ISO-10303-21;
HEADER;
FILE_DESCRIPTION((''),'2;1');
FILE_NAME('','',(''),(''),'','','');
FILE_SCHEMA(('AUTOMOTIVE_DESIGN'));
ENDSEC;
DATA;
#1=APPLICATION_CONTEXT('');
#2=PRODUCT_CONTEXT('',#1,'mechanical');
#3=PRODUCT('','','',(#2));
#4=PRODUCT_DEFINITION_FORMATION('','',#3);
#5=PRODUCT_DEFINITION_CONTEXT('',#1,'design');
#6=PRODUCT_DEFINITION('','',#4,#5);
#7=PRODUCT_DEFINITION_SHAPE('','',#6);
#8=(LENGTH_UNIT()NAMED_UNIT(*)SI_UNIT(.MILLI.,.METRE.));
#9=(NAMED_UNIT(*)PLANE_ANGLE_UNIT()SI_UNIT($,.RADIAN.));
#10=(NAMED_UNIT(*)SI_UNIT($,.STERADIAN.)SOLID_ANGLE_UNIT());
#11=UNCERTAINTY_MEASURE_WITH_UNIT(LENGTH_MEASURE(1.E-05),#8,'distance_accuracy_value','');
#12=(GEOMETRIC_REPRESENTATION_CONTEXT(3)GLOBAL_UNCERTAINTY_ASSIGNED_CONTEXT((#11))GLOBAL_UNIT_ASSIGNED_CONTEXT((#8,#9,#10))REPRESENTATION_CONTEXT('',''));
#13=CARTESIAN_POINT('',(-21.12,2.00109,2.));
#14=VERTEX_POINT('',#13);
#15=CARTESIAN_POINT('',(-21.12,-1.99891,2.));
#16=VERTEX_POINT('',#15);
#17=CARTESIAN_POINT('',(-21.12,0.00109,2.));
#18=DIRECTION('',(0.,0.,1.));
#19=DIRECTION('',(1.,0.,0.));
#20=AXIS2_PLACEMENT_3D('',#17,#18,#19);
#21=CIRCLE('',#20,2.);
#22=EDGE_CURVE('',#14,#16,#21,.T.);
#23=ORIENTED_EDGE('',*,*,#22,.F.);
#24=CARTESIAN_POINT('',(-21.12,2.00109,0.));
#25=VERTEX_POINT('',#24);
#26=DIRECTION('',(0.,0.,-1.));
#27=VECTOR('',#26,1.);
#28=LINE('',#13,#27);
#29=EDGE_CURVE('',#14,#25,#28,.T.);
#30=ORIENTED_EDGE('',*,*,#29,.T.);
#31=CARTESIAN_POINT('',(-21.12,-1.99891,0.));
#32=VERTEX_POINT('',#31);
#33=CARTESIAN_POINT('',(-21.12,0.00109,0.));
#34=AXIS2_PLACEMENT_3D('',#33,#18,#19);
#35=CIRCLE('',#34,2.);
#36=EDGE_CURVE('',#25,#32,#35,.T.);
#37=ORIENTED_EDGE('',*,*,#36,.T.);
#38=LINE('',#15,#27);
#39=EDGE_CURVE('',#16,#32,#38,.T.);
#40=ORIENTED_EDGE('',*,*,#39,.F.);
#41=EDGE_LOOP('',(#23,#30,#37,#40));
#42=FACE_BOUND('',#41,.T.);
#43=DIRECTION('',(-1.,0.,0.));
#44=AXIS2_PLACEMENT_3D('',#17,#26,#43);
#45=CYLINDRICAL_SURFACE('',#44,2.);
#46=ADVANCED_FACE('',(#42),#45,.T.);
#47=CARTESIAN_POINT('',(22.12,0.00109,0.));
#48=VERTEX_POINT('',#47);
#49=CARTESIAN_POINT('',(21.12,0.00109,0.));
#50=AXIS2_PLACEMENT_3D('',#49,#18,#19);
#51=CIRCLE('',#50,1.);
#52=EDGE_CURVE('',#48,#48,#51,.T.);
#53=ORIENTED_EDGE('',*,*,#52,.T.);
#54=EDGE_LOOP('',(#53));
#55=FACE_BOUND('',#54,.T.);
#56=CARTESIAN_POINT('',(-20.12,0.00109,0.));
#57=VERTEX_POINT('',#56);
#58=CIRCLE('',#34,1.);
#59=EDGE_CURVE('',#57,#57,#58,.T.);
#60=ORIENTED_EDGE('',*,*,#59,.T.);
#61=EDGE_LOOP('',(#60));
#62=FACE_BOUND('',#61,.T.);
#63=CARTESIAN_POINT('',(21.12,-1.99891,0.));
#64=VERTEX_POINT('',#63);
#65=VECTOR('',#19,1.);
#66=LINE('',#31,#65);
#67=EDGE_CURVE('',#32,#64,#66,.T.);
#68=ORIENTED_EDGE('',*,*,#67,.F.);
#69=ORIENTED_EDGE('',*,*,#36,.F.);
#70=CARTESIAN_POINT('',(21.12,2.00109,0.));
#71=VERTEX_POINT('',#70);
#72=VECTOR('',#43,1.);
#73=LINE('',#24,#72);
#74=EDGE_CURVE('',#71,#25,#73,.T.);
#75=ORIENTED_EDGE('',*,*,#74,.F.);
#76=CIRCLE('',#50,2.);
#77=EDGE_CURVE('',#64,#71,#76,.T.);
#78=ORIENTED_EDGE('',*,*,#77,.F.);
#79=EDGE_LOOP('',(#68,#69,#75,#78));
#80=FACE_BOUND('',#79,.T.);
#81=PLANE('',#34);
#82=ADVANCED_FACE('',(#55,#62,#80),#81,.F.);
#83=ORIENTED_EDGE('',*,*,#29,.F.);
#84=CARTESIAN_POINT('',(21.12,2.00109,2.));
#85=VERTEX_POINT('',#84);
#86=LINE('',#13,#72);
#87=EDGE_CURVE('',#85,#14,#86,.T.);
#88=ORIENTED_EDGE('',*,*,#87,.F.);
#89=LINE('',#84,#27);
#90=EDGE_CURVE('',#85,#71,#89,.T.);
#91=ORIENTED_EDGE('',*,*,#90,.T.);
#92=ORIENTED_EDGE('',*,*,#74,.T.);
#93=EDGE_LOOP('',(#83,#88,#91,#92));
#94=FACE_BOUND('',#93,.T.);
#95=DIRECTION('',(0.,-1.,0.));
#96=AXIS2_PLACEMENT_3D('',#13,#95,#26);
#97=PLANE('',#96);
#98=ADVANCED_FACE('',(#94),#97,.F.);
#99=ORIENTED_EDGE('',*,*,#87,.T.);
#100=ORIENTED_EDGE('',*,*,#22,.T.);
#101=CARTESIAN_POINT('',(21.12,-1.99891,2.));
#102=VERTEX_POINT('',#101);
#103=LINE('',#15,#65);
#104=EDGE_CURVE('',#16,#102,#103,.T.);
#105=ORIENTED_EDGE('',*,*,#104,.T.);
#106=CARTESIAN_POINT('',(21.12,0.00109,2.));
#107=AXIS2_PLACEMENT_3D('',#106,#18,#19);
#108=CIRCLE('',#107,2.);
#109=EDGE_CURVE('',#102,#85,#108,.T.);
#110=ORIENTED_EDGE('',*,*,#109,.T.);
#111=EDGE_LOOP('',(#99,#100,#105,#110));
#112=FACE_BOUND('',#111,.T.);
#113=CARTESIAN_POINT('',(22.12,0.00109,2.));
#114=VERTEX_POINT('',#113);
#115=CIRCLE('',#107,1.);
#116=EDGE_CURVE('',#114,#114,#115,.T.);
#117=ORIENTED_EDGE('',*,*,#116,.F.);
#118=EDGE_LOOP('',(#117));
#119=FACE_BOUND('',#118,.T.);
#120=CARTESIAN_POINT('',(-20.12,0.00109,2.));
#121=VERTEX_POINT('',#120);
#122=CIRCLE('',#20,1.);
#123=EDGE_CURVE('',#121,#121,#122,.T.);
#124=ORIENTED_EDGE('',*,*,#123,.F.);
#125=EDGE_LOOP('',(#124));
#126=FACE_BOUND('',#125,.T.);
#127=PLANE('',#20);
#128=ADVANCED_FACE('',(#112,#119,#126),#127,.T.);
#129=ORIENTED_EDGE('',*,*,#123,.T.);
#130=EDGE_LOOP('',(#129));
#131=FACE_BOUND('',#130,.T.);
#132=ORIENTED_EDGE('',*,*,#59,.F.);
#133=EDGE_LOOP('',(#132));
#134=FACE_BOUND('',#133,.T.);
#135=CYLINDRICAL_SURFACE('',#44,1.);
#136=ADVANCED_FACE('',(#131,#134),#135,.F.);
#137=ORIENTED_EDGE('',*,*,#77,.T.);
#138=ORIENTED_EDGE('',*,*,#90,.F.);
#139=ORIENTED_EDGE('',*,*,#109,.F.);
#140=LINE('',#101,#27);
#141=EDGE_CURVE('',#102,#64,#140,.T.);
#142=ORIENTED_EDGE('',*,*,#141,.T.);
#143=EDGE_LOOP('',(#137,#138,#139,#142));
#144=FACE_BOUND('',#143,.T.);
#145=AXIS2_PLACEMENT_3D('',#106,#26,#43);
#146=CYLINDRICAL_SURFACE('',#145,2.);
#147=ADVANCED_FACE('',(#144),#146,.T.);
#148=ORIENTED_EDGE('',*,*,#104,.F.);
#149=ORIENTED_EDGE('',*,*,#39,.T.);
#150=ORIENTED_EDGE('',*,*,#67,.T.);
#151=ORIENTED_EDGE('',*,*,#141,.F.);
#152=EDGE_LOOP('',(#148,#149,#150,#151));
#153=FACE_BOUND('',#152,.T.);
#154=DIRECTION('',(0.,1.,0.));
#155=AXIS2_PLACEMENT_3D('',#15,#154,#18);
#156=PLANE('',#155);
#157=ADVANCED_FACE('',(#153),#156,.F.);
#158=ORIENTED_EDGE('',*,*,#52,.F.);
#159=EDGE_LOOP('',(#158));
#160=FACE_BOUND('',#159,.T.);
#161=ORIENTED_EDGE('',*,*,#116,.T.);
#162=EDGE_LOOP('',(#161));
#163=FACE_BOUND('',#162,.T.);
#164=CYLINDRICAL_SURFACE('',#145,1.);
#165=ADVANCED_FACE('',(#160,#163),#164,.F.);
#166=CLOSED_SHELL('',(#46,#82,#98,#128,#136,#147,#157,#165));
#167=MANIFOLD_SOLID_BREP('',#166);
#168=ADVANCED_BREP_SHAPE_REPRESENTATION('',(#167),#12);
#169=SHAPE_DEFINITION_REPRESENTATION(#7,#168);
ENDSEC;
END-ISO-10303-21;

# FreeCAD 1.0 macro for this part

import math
import FreeCAD as App
import Part
import Sketcher
from FreeCAD import Vector
Q = App.Units.Quantity

doc = App.newDocument("Part")
params = doc.addObject("Spreadsheet::Sheet", "Params")
for row, (alias, value) in enumerate([
    ("sketch1_diameter", "2 mm"),
    ("sketch1_radius", "2 mm"),
    ("sketch1_width", "42.24 mm"),
    ("pad1_length", "2 mm"),
], start=1):
    params.set(f"A{row}", alias)
    params.set(f"B{row}", "=" + value)
    params.setAlias(f"B{row}", alias)

body = doc.addObject("PartDesign::Body", "Body")

# Sketch on XY plane
sketch1 = body.newObject("Sketcher::SketchObject", "Sketch")
sketch1.AttachmentSupport = (doc.getObject("XY_Plane"), [""])
sketch1.MapMode = "FlatFace"
sketch1.addGeometry(Part.LineSegment(Vector(21.1, 2, 0), Vector(-21.1, 2, 0)), False)
sketch1.addGeometry(Part.ArcOfCircle(Part.Circle(Vector(-21.1, 0, 0), Vector(0, 0, 1), 2), math.radians(90), math.radians(270)), False)
sketch1.addGeometry(Part.LineSegment(Vector(-21.1, -2, 0), Vector(21.1, -2, 0)), False)
sketch1.addGeometry(Part.ArcOfCircle(Part.Circle(Vector(21.1, 0, 0), Vector(0, 0, 1), 2), math.radians(-90), math.radians(90)), False)
sketch1.addGeometry(Part.Circle(Vector(21.1, 0, 0), Vector(0, 0, 1), 1), False)
sketch1.addGeometry(Part.Circle(Vector(-21.1, 0, 0), Vector(0, 0, 1), 1), False)
sketch1.addConstraint(Sketcher.Constraint("Tangent", 0, 2, 1, 1))
sketch1.addConstraint(Sketcher.Constraint("Tangent", 1, 2, 2, 1))
sketch1.addConstraint(Sketcher.Constraint("Tangent", 2, 2, 3, 1))
sketch1.addConstraint(Sketcher.Constraint("Tangent", 3, 2, 0, 1))
sketch1.addConstraint(Sketcher.Constraint("Horizontal", 0))
sketch1.addConstraint(Sketcher.Constraint("Horizontal", 2))
sketch1.addConstraint(Sketcher.Constraint("Coincident", 4, 3, 3, 3))
sketch1.addConstraint(Sketcher.Constraint("Coincident", 5, 3, 1, 3))
sketch1.addConstraint(Sketcher.Constraint("Equal", 4, 5))
sketch1.addConstraint(Sketcher.Constraint("Diameter", 4, Q("2 mm")))
sketch1.addConstraint(Sketcher.Constraint("Radius", 1, Q("2 mm")))
sketch1.addConstraint(Sketcher.Constraint("DistanceX", 0, 2, 0, 1, Q("42.24 mm")))
sketch1.addConstraint(Sketcher.Constraint("DistanceX", 1, 3, -1, 1, Q("21.12 mm")))
sketch1.addConstraint(Sketcher.Constraint("DistanceY", -1, 1, 1, 3, Q("0.00109 mm")))
sketch1.setExpression("Constraints[9]", "Params.sketch1_diameter")
sketch1.setExpression("Constraints[10]", "Params.sketch1_radius")
sketch1.setExpression("Constraints[11]", "Params.sketch1_width")
pad1 = body.newObject("PartDesign::Pad", "Pad")
pad1.Profile = sketch1
pad1.setExpression("Length", "Params.pad1_length")

doc.recompute()
